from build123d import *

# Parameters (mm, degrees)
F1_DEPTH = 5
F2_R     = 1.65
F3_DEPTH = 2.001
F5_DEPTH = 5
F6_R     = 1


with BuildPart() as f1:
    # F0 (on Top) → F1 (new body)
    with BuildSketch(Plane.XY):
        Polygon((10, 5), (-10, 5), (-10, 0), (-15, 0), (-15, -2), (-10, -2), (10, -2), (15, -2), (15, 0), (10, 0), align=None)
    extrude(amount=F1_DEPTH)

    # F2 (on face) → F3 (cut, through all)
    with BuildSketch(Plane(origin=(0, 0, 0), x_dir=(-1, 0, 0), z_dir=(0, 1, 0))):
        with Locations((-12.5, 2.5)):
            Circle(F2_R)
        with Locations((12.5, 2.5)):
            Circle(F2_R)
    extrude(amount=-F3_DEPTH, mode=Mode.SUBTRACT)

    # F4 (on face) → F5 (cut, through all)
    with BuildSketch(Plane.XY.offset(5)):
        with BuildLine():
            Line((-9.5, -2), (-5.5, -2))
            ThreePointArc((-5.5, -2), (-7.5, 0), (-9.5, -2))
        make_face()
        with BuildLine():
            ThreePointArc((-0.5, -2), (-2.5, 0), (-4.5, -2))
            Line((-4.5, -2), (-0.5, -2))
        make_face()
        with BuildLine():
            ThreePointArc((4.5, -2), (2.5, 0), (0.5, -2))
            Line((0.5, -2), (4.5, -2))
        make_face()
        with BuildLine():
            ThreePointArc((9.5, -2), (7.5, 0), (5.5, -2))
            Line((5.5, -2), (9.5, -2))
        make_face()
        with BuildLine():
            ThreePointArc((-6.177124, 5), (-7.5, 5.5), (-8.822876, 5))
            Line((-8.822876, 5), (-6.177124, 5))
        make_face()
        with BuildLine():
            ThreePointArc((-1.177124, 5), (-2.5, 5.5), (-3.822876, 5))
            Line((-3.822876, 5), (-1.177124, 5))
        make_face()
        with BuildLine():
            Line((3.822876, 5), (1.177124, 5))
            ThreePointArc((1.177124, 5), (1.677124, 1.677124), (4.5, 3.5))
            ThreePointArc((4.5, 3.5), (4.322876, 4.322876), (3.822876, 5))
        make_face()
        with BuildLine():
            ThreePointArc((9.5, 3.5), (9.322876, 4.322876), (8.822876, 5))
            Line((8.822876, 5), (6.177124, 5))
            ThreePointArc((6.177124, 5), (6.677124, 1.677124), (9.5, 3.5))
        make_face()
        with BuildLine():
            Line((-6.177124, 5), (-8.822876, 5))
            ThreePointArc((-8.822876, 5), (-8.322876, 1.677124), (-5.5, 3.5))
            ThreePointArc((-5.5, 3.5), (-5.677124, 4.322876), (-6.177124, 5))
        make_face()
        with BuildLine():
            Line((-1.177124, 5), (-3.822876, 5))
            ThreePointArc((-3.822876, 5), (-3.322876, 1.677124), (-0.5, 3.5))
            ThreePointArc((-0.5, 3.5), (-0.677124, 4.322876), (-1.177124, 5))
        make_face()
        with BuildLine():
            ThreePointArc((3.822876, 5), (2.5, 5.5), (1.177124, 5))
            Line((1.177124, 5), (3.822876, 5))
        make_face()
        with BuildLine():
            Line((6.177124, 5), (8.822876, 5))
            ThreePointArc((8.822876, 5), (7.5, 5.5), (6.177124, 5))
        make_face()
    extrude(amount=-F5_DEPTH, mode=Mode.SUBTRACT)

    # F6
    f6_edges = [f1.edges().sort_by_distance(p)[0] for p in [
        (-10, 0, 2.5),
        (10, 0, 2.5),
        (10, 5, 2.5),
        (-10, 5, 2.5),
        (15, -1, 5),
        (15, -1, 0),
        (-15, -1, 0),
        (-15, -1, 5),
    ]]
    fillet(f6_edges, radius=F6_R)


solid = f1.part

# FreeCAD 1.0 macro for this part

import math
import FreeCAD as App
import Part
import Sketcher


def edges_at(feature, points):
    """Names of the edges that pass closest to the given points."""
    edges = feature.Shape.Edges
    near = lambda p: min(range(len(edges)), key=lambda i: edges[i].distToShape(Part.Vertex(*p))[0])
    return sorted({f"Edge{near(p) + 1}" for p in points})


def add_polygon(sketch, points):
    """Adds a closed chain of lines whose ends are joined by coincident constraints."""
    first, n = sketch.GeometryCount, len(points)
    for a, b in zip(points, points[1:] + points[:1]):
        sketch.addGeometry(Part.LineSegment(App.Vector(*a, 0), App.Vector(*b, 0)), False)
    for i in range(n):
        sketch.addConstraint(Sketcher.Constraint("Coincident", first + i, 2, first + (i + 1) % n, 1))

doc = App.newDocument("Part")
body = doc.addObject("PartDesign::Body", "Body")

# Sketch on XY plane
sketch1 = body.newObject("Sketcher::SketchObject", "Sketch")
sketch1.AttachmentSupport = (doc.getObject("XY_Plane"), [""])
sketch1.MapMode = "FlatFace"
add_polygon(sketch1, [(10, 5), (-10, 5), (-10, 0), (-15, 0), (-15, -2), (15, -2), (15, 0), (10, 0)])  # lines 0-7
sketch1.addConstraint([
    Sketcher.Constraint("Horizontal", 0),
    Sketcher.Constraint("Vertical", 1),
    Sketcher.Constraint("Horizontal", 2),
    Sketcher.Constraint("Vertical", 3),
    Sketcher.Constraint("Horizontal", 4),
    Sketcher.Constraint("Vertical", 5),
    Sketcher.Constraint("Horizontal", 6),
    Sketcher.Constraint("Vertical", 7),
    Sketcher.Constraint("Symmetric", 2, 2, 5, 2, -1, 1),
    Sketcher.Constraint("Symmetric", 1, 2, 6, 2, -2),
    Sketcher.Constraint("Equal", 6, 1),
    Sketcher.Constraint("DistanceX", 0, 2, 0, 1, 20.0),
    Sketcher.Constraint("DistanceX", 2, 2, 2, 1, 5.0),
    Sketcher.Constraint("DistanceY", 3, 2, 3, 1, 2.0),
])
pad1 = body.newObject("PartDesign::Pad", "Pad")
pad1.Profile = sketch1
pad1.Length = 5

# Sketch on XZ plane
sketch2 = body.newObject("Sketcher::SketchObject", "Sketch001")
sketch2.AttachmentSupport = (doc.getObject("XZ_Plane"), [""])
sketch2.MapMode = "FlatFace"
sketch2.addGeometry([
    Part.Circle(App.Vector(12.5, 2.5, 0), App.Vector(0, 0, 1), 1.6),
    Part.Circle(App.Vector(-12.5, 2.5, 0), App.Vector(0, 0, 1), 1.6),
], False)
sketch2.addConstraint([
    Sketcher.Constraint("Equal", 0, 1),
    Sketcher.Constraint("Symmetric", 0, 3, 1, 3, -2),
    Sketcher.Constraint("Diameter", 0, 3.3),
    Sketcher.Constraint("DistanceX", 1, 3, 0, 3, 25.0),
    Sketcher.Constraint("DistanceY", -1, 1, 0, 3, 2.5),
])
pocket1 = body.newObject("PartDesign::Pocket", "Pocket")
pocket1.Profile = sketch2
pocket1.Type = "ThroughAll"
pocket1.Reversed = True

# Sketch on XY plane
sketch3 = body.newObject("Sketcher::SketchObject", "Sketch002")
sketch3.AttachmentSupport = (doc.getObject("XY_Plane"), [""])
sketch3.MapMode = "FlatFace"
sketch3.AttachmentOffset = App.Placement(App.Vector(0, 0, 5), App.Rotation())
sketch3.addGeometry([
    Part.LineSegment(App.Vector(-9.5, -2, 0), App.Vector(-5.5, -2, 0)),  # 0
    Part.ArcOfCircle(Part.Circle(App.Vector(-7.5, -2, 0), App.Vector(0, 0, 1), 2), math.radians(0), math.radians(180)),  # 1
    Part.ArcOfCircle(Part.Circle(App.Vector(-2.5, -2, 0), App.Vector(0, 0, 1), 2), math.radians(0), math.radians(180)),  # 2
    Part.LineSegment(App.Vector(-4.5, -2, 0), App.Vector(-0.5, -2, 0)),  # 3
    Part.ArcOfCircle(Part.Circle(App.Vector(2.5, -2, 0), App.Vector(0, 0, 1), 2), math.radians(0), math.radians(180)),  # 4
    Part.LineSegment(App.Vector(0.5, -2, 0), App.Vector(4.5, -2, 0)),  # 5
    Part.ArcOfCircle(Part.Circle(App.Vector(7.5, -2, 0), App.Vector(0, 0, 1), 2), math.radians(0), math.radians(180)),  # 6
    Part.LineSegment(App.Vector(5.5, -2, 0), App.Vector(9.5, -2, 0)),  # 7
    Part.ArcOfCircle(Part.Circle(App.Vector(-7.5, 3.5, 0), App.Vector(0, 0, 1), 2), math.radians(49), math.radians(131)),  # 8
    Part.ArcOfCircle(Part.Circle(App.Vector(-7.5, 3.5, 0), App.Vector(0, 0, 1), 2), math.radians(131), math.radians(360)),  # 9
    Part.ArcOfCircle(Part.Circle(App.Vector(-7.5, 3.5, 0), App.Vector(0, 0, 1), 2), math.radians(0), math.radians(49)),  # 10
    Part.ArcOfCircle(Part.Circle(App.Vector(-2.5, 3.5, 0), App.Vector(0, 0, 1), 2), math.radians(49), math.radians(131)),  # 11
    Part.ArcOfCircle(Part.Circle(App.Vector(-2.5, 3.5, 0), App.Vector(0, 0, 1), 2), math.radians(131), math.radians(360)),  # 12
    Part.ArcOfCircle(Part.Circle(App.Vector(-2.5, 3.5, 0), App.Vector(0, 0, 1), 2), math.radians(0), math.radians(49)),  # 13
    Part.ArcOfCircle(Part.Circle(App.Vector(2.5, 3.5, 0), App.Vector(0, 0, 1), 2), math.radians(131), math.radians(360)),  # 14
    Part.ArcOfCircle(Part.Circle(App.Vector(2.5, 3.5, 0), App.Vector(0, 0, 1), 2), math.radians(0), math.radians(49)),  # 15
    Part.ArcOfCircle(Part.Circle(App.Vector(2.5, 3.5, 0), App.Vector(0, 0, 1), 2), math.radians(49), math.radians(131)),  # 16
    Part.ArcOfCircle(Part.Circle(App.Vector(7.5, 3.5, 0), App.Vector(0, 0, 1), 2), math.radians(0), math.radians(49)),  # 17
    Part.ArcOfCircle(Part.Circle(App.Vector(7.5, 3.5, 0), App.Vector(0, 0, 1), 2), math.radians(49), math.radians(131)),  # 18
    Part.ArcOfCircle(Part.Circle(App.Vector(7.5, 3.5, 0), App.Vector(0, 0, 1), 2), math.radians(131), math.radians(360)),  # 19
], False)
sketch3.addConstraint([
    Sketcher.Constraint("Coincident", 0, 1, 1, 2),
    Sketcher.Constraint("Coincident", 1, 1, 0, 2),
    Sketcher.Constraint("Coincident", 2, 1, 3, 2),
    Sketcher.Constraint("Coincident", 3, 1, 2, 2),
    Sketcher.Constraint("Coincident", 4, 1, 5, 2),
    Sketcher.Constraint("Coincident", 5, 1, 4, 2),
    Sketcher.Constraint("Coincident", 6, 1, 7, 2),
    Sketcher.Constraint("Coincident", 7, 1, 6, 2),
    Sketcher.Constraint("Tangent", 8, 2, 9, 1),
    Sketcher.Constraint("Tangent", 9, 2, 10, 1),
    Sketcher.Constraint("Tangent", 10, 2, 8, 1),
    Sketcher.Constraint("Tangent", 11, 2, 12, 1),
    Sketcher.Constraint("Tangent", 12, 2, 13, 1),
    Sketcher.Constraint("Tangent", 13, 2, 11, 1),
    Sketcher.Constraint("Tangent", 14, 2, 15, 1),
    Sketcher.Constraint("Tangent", 15, 2, 16, 1),
    Sketcher.Constraint("Tangent", 16, 2, 14, 1),
    Sketcher.Constraint("Tangent", 17, 2, 18, 1),
    Sketcher.Constraint("Tangent", 18, 2, 19, 1),
    Sketcher.Constraint("Tangent", 19, 2, 17, 1),
    Sketcher.Constraint("Horizontal", 0),
    Sketcher.Constraint("Horizontal", 3),
    Sketcher.Constraint("Horizontal", 5),
    Sketcher.Constraint("Horizontal", 7),
    Sketcher.Constraint("Equal", 1, 2),
    Sketcher.Constraint("Equal", 2, 4),
    Sketcher.Constraint("Equal", 4, 6),
    Sketcher.Constraint("Equal", 6, 8),
    Sketcher.Constraint("Equal", 9, 11),
    Sketcher.Constraint("Equal", 12, 14),
    Sketcher.Constraint("Equal", 15, 17),
    Sketcher.Constraint("Symmetric", 2, 3, 4, 3, -2),
    Sketcher.Constraint("Symmetric", 1, 3, 6, 3, -2),
    Sketcher.Constraint("Symmetric", 11, 3, 14, 3, -2),
    Sketcher.Constraint("Symmetric", 8, 3, 17, 3, -2),
    Sketcher.Constraint("Horizontal", 1, 3, 2, 3),
    Sketcher.Constraint("Horizontal", 9, 3, 11, 3),
    Sketcher.Constraint("Horizontal", 6, 3, 0, 1),
    Sketcher.Constraint("Horizontal", 1, 1, 2, 1),
    Sketcher.Constraint("Horizontal", 3, 1, 4, 1),
    Sketcher.Constraint("Horizontal", 5, 1, 6, 1),
    Sketcher.Constraint("Horizontal", 19, 3, 9, 2),
    Sketcher.Constraint("Horizontal", 8, 2, 10, 2),
    Sketcher.Constraint("Horizontal", 10, 2, 11, 2),
    Sketcher.Constraint("Horizontal", 9, 2, 12, 2),
    Sketcher.Constraint("Horizontal", 11, 2, 13, 2),
    Sketcher.Constraint("Horizontal", 12, 2, 14, 2),
    Sketcher.Constraint("Horizontal", 13, 2, 15, 2),
    Sketcher.Constraint("Horizontal", 15, 2, 16, 2),
    Sketcher.Constraint("Horizontal", 16, 2, 17, 2),
    Sketcher.Constraint("Horizontal", 17, 2, 18, 2),
    Sketcher.Constraint("Horizontal", 14, 2, 19, 2),
    Sketcher.Constraint("Vertical", 1, 3, 8, 3),
    Sketcher.Constraint("Vertical", 2, 3, 11, 3),
    Sketcher.Constraint("Radius", 1, 2.0),
    Sketcher.Constraint("DistanceY", 1, 3, -1, 1, 2.0),
    Sketcher.Constraint("DistanceY", -1, 1, 8, 2, 5.0),
    Sketcher.Constraint("DistanceX", 1, 3, 2, 3, 5.0),
    Sketcher.Constraint("DistanceX", 2, 3, 4, 3, 5.0),
    Sketcher.Constraint("DistanceY", -1, 1, 8, 3, 3.499999),
])
pocket2 = body.newObject("PartDesign::Pocket", "Pocket001")
pocket2.Profile = sketch3
pocket2.Type = "ThroughAll"
doc.recompute()

fillet = body.newObject("PartDesign::Fillet", "Fillet")
fillet.Base = (pocket2, edges_at(pocket2, [
    (-10, 0, 2.5),
    (10, 0, 2.5),
    (10, 5, 2.5),
    (-10, 5, 2.5),
    (15, -1, 5),
    (15, -1, 0),
    (-15, -1, 0),
    (-15, -1, 5),
]))
fillet.Radius = 1

doc.recompute()
